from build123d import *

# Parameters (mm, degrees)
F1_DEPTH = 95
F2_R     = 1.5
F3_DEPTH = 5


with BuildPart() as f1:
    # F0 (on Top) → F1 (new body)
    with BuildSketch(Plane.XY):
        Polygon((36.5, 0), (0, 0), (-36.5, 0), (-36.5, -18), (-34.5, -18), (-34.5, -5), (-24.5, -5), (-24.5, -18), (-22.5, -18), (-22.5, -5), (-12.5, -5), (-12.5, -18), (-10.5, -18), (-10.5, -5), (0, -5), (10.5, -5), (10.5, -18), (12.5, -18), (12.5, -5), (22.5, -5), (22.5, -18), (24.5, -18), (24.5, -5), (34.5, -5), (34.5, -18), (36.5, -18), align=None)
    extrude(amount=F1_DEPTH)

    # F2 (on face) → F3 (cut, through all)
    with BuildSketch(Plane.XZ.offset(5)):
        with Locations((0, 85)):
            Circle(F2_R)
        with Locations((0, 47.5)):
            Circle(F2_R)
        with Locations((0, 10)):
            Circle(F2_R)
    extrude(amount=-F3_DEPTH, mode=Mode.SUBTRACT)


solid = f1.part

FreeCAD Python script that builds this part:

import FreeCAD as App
import Part
import Sketcher

doc = App.newDocument("Part")
body = doc.addObject("PartDesign::Body", "Body")

# Sketch on XY plane
sketch1 = body.newObject("Sketcher::SketchObject", "Sketch")
sketch1.AttachmentSupport = (doc.getObject("XY_Plane"), [""])
sketch1.MapMode = "FlatFace"
sketch1.addGeometry(Part.LineSegment(App.Vector(36.5, 0, 0), App.Vector(-36.5, 0, 0)), False)
sketch1.addGeometry(Part.LineSegment(App.Vector(-36.5, 0, 0), App.Vector(-36.5, -18, 0)), False)
sketch1.addGeometry(Part.LineSegment(App.Vector(-36.5, -18, 0), App.Vector(-34.5, -18, 0)), False)
sketch1.addGeometry(Part.LineSegment(App.Vector(-34.5, -18, 0), App.Vector(-34.5, -5, 0)), False)
sketch1.addGeometry(Part.LineSegment(App.Vector(-34.5, -5, 0), App.Vector(-24.5, -5, 0)), False)
sketch1.addGeometry(Part.LineSegment(App.Vector(-24.5, -5, 0), App.Vector(-24.5, -18, 0)), False)
sketch1.addGeometry(Part.LineSegment(App.Vector(-24.5, -18, 0), App.Vector(-22.5, -18, 0)), False)
sketch1.addGeometry(Part.LineSegment(App.Vector(-22.5, -18, 0), App.Vector(-22.5, -5, 0)), False)
sketch1.addGeometry(Part.LineSegment(App.Vector(-22.5, -5, 0), App.Vector(-12.5, -5, 0)), False)
sketch1.addGeometry(Part.LineSegment(App.Vector(-12.5, -5, 0), App.Vector(-12.5, -18, 0)), False)
sketch1.addGeometry(Part.LineSegment(App.Vector(-12.5, -18, 0), App.Vector(-10.5, -18, 0)), False)
sketch1.addGeometry(Part.LineSegment(App.Vector(-10.5, -18, 0), App.Vector(-10.5, -5, 0)), False)
sketch1.addGeometry(Part.LineSegment(App.Vector(-10.5, -5, 0), App.Vector(10.5, -5, 0)), False)
sketch1.addGeometry(Part.LineSegment(App.Vector(10.5, -5, 0), App.Vector(10.5, -18, 0)), False)
sketch1.addGeometry(Part.LineSegment(App.Vector(10.5, -18, 0), App.Vector(12.5, -18, 0)), False)
sketch1.addGeometry(Part.LineSegment(App.Vector(12.5, -18, 0), App.Vector(12.5, -5, 0)), False)
sketch1.addGeometry(Part.LineSegment(App.Vector(12.5, -5, 0), App.Vector(22.5, -5, 0)), False)
sketch1.addGeometry(Part.LineSegment(App.Vector(22.5, -5, 0), App.Vector(22.5, -18, 0)), False)
sketch1.addGeometry(Part.LineSegment(App.Vector(22.5, -18, 0), App.Vector(24.5, -18, 0)), False)
sketch1.addGeometry(Part.LineSegment(App.Vector(24.5, -18, 0), App.Vector(24.5, -5, 0)), False)
sketch1.addGeometry(Part.LineSegment(App.Vector(24.5, -5, 0), App.Vector(34.5, -5, 0)), False)
sketch1.addGeometry(Part.LineSegment(App.Vector(34.5, -5, 0), App.Vector(34.5, -18, 0)), False)
sketch1.addGeometry(Part.LineSegment(App.Vector(34.5, -18, 0), App.Vector(36.5, -18, 0)), False)
sketch1.addGeometry(Part.LineSegment(App.Vector(36.5, -18, 0), App.Vector(36.5, 0, 0)), False)
sketch1.addConstraint(Sketcher.Constraint("Coincident", 0, 2, 1, 1))
sketch1.addConstraint(Sketcher.Constraint("Coincident", 1, 2, 2, 1))
sketch1.addConstraint(Sketcher.Constraint("Coincident", 2, 2, 3, 1))
sketch1.addConstraint(Sketcher.Constraint("Coincident", 3, 2, 4, 1))
sketch1.addConstraint(Sketcher.Constraint("Coincident", 4, 2, 5, 1))
sketch1.addConstraint(Sketcher.Constraint("Coincident", 5, 2, 6, 1))
sketch1.addConstraint(Sketcher.Constraint("Coincident", 6, 2, 7, 1))
sketch1.addConstraint(Sketcher.Constraint("Coincident", 7, 2, 8, 1))
sketch1.addConstraint(Sketcher.Constraint("Coincident", 8, 2, 9, 1))
sketch1.addConstraint(Sketcher.Constraint("Coincident", 9, 2, 10, 1))
sketch1.addConstraint(Sketcher.Constraint("Coincident", 10, 2, 11, 1))
sketch1.addConstraint(Sketcher.Constraint("Coincident", 11, 2, 12, 1))
sketch1.addConstraint(Sketcher.Constraint("Coincident", 12, 2, 13, 1))
sketch1.addConstraint(Sketcher.Constraint("Coincident", 13, 2, 14, 1))
sketch1.addConstraint(Sketcher.Constraint("Coincident", 14, 2, 15, 1))
sketch1.addConstraint(Sketcher.Constraint("Coincident", 15, 2, 16, 1))
sketch1.addConstraint(Sketcher.Constraint("Coincident", 16, 2, 17, 1))
sketch1.addConstraint(Sketcher.Constraint("Coincident", 17, 2, 18, 1))
sketch1.addConstraint(Sketcher.Constraint("Coincident", 18, 2, 19, 1))
sketch1.addConstraint(Sketcher.Constraint("Coincident", 19, 2, 20, 1))
sketch1.addConstraint(Sketcher.Constraint("Coincident", 20, 2, 21, 1))
sketch1.addConstraint(Sketcher.Constraint("Coincident", 21, 2, 22, 1))
sketch1.addConstraint(Sketcher.Constraint("Coincident", 22, 2, 23, 1))
sketch1.addConstraint(Sketcher.Constraint("Coincident", 23, 2, 0, 1))
sketch1.addConstraint(Sketcher.Constraint("Horizontal", 0))
sketch1.addConstraint(Sketcher.Constraint("Vertical", 1))
sketch1.addConstraint(Sketcher.Constraint("Horizontal", 2))
sketch1.addConstraint(Sketcher.Constraint("Vertical", 3))
sketch1.addConstraint(Sketcher.Constraint("Horizontal", 4))
sketch1.addConstraint(Sketcher.Constraint("Vertical", 5))
sketch1.addConstraint(Sketcher.Constraint("Horizontal", 6))
sketch1.addConstraint(Sketcher.Constraint("Vertical", 7))
sketch1.addConstraint(Sketcher.Constraint("Horizontal", 8))
sketch1.addConstraint(Sketcher.Constraint("Vertical", 9))
sketch1.addConstraint(Sketcher.Constraint("Horizontal", 10))
sketch1.addConstraint(Sketcher.Constraint("Vertical", 11))
sketch1.addConstraint(Sketcher.Constraint("Horizontal", 12))
sketch1.addConstraint(Sketcher.Constraint("Vertical", 13))
sketch1.addConstraint(Sketcher.Constraint("Horizontal", 14))
sketch1.addConstraint(Sketcher.Constraint("Vertical", 15))
sketch1.addConstraint(Sketcher.Constraint("Horizontal", 16))
sketch1.addConstraint(Sketcher.Constraint("Vertical", 17))
sketch1.addConstraint(Sketcher.Constraint("Horizontal", 18))
sketch1.addConstraint(Sketcher.Constraint("Vertical", 19))
sketch1.addConstraint(Sketcher.Constraint("Horizontal", 20))
sketch1.addConstraint(Sketcher.Constraint("Vertical", 21))
sketch1.addConstraint(Sketcher.Constraint("Horizontal", 22))
sketch1.addConstraint(Sketcher.Constraint("Vertical", 23))
sketch1.addConstraint(Sketcher.Constraint("Symmetric", 0, 2, 23, 2, -1, 1))
sketch1.addConstraint(Sketcher.Constraint("Symmetric", 10, 2, 13, 2, -2))
sketch1.addConstraint(Sketcher.Constraint("Symmetric", 8, 2, 15, 2, -2))
sketch1.addConstraint(Sketcher.Constraint("Symmetric", 6, 2, 17, 2, -2))
sketch1.addConstraint(Sketcher.Constraint("Symmetric", 4, 2, 19, 2, -2))
sketch1.addConstraint(Sketcher.Constraint("Symmetric", 2, 2, 21, 2, -2))
sketch1.addConstraint(Sketcher.Constraint("Horizontal", 2, 2, 5, 2))
sketch1.addConstraint(Sketcher.Constraint("Horizontal", 4, 2, 7, 2))
sketch1.addConstraint(Sketcher.Constraint("Horizontal", 6, 2, 9, 2))
sketch1.addConstraint(Sketcher.Constraint("Horizontal", 8, 2, 11, 2))
sketch1.addConstraint(Sketcher.Constraint("Equal", 2, 6))
sketch1.addConstraint(Sketcher.Constraint("Equal", 4, 8))
sketch1.addConstraint(Sketcher.Constraint("Equal", 6, 10))
sketch1.addConstraint(Sketcher.Constraint("DistanceX", 0, 2, 0, 1, 73.0))
sketch1.addConstraint(Sketcher.Constraint("DistanceX", 2, 1, 2, 2, 2.0))
sketch1.addConstraint(Sketcher.Constraint("DistanceX", 4, 1, 4, 2, 10.0))
sketch1.addConstraint(Sketcher.Constraint("DistanceY", 1, 2, 1, 1, 18.0))
sketch1.addConstraint(Sketcher.Constraint("DistanceY", 3, 1, 3, 2, 13.0))
pad1 = body.newObject("PartDesign::Pad", "Pad")
pad1.Profile = sketch1
pad1.Length = 95

# Sketch on XZ plane
sketch2 = body.newObject("Sketcher::SketchObject", "Sketch001")
sketch2.AttachmentSupport = (doc.getObject("XZ_Plane"), [""])
sketch2.MapMode = "FlatFace"
sketch2.AttachmentOffset = App.Placement(App.Vector(0, 0, 5), App.Rotation())
sketch2.addGeometry(Part.Circle(App.Vector(0, 85, 0), App.Vector(0, 0, 1), 1.5), False)
sketch2.addGeometry(Part.Circle(App.Vector(0, 47.5, 0), App.Vector(0, 0, 1), 1.5), False)
sketch2.addGeometry(Part.Circle(App.Vector(0, 10, 0), App.Vector(0, 0, 1), 1.5), False)
sketch2.addConstraint(Sketcher.Constraint("Equal", 0, 1))
sketch2.addConstraint(Sketcher.Constraint("Equal", 1, 2))
sketch2.addConstraint(Sketcher.Constraint("PointOnObject", 0, 3, -2))
sketch2.addConstraint(Sketcher.Constraint("PointOnObject", 1, 3, -2))
sketch2.addConstraint(Sketcher.Constraint("PointOnObject", 2, 3, -2))
sketch2.addConstraint(Sketcher.Constraint("Diameter", 0, 3.0))
sketch2.addConstraint(Sketcher.Constraint("DistanceY", -1, 1, 0, 3, 85.0))
sketch2.addConstraint(Sketcher.Constraint("DistanceY", -1, 1, 2, 3, 10.0))
sketch2.addConstraint(Sketcher.Constraint("DistanceY", -1, 1, 1, 3, 47.5))
pocket1 = body.newObject("PartDesign::Pocket", "Pocket")
pocket1.Profile = sketch2
pocket1.Type = "ThroughAll"

doc.recompute()
